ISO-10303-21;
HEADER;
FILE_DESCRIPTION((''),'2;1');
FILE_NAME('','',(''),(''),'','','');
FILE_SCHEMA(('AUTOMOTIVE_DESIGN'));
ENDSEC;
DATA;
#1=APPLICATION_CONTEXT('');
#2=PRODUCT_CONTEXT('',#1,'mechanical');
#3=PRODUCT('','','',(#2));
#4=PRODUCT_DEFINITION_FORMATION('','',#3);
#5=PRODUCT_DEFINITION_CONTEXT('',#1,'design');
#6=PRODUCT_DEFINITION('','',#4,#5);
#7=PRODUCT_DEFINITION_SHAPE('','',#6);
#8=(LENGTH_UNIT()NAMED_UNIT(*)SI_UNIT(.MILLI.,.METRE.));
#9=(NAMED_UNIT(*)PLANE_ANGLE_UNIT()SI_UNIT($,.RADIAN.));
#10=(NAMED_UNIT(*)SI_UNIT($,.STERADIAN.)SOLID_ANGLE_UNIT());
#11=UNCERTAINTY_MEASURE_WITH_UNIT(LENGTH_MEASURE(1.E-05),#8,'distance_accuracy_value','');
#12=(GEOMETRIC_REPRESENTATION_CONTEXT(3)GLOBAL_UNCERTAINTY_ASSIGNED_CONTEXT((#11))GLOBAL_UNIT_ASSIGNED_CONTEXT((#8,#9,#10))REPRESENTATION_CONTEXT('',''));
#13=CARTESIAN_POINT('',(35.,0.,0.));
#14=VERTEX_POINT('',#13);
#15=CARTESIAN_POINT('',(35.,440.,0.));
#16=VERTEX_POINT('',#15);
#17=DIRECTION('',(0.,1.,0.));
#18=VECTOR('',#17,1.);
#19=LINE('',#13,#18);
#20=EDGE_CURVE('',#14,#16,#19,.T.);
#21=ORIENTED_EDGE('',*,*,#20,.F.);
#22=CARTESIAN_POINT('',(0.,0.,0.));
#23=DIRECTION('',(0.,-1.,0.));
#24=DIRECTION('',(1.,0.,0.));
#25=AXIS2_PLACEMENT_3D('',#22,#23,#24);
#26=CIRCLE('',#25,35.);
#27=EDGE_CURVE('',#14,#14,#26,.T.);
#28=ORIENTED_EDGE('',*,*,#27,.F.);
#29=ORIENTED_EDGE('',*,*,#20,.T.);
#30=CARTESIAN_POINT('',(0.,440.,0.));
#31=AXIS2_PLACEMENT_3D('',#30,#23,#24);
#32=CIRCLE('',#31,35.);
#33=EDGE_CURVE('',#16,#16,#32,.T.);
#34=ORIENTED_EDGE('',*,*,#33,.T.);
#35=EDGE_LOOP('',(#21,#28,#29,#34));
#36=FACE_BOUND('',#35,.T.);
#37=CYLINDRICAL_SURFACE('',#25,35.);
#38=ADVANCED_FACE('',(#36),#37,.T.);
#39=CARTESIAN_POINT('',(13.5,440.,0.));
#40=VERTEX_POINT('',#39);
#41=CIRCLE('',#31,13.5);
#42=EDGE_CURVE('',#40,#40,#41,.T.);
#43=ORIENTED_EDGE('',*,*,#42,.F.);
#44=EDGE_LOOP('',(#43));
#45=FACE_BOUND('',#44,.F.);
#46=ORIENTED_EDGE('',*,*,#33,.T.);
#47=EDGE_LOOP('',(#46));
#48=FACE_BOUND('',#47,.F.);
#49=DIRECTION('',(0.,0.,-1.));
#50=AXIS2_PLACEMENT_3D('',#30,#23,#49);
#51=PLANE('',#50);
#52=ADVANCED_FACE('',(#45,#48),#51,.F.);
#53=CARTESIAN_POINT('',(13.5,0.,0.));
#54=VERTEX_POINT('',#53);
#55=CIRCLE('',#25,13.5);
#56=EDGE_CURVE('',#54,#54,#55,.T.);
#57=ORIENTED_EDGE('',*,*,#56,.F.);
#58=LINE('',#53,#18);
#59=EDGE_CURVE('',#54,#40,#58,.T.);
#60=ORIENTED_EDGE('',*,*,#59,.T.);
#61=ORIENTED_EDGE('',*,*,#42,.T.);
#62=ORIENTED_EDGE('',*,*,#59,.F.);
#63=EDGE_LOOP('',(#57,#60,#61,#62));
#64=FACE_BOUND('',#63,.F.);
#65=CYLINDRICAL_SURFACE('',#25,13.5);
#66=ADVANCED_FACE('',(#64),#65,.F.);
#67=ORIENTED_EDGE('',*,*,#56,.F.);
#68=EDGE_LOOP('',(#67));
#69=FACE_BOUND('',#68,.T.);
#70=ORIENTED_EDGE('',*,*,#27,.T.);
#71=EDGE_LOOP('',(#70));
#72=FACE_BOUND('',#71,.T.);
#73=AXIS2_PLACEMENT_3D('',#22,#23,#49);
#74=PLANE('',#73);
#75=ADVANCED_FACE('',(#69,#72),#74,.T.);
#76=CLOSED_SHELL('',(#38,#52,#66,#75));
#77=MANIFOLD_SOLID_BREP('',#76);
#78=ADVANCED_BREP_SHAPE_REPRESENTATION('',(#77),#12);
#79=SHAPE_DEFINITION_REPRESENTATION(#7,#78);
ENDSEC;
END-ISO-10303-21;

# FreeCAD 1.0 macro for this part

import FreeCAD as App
import Part
import Sketcher

V = App.Vector
Q = App.Units.Quantity

doc = App.newDocument("Part")
body = doc.addObject("PartDesign::Body", "Body")

# Sketch on XZ plane
sketch1 = body.newObject("Sketcher::SketchObject", "Sketch")
sketch1.AttachmentSupport = (doc.getObject("XZ_Plane"), [""])
sketch1.MapMode = "FlatFace"
sketch1.addGeometry([
    Part.Circle(V(0, 0, 0), V(0, 0, 1), 35),
    Part.Circle(V(0, 0, 0), V(0, 0, 1), 14),
], False)
sketch1.addConstraint([
    Sketcher.Constraint("Coincident", 0, 3, -1, 1),
    Sketcher.Constraint("Coincident", 1, 3, -1, 1),
    Sketcher.Constraint("Diameter", 0, Q("70 mm")),
    Sketcher.Constraint("Diameter", 1, Q("27 mm")),
])
pad1 = body.newObject("PartDesign::Pad", "Pad")
pad1.Profile = sketch1
pad1.Length = 440
pad1.Reversed = True

doc.recompute()
